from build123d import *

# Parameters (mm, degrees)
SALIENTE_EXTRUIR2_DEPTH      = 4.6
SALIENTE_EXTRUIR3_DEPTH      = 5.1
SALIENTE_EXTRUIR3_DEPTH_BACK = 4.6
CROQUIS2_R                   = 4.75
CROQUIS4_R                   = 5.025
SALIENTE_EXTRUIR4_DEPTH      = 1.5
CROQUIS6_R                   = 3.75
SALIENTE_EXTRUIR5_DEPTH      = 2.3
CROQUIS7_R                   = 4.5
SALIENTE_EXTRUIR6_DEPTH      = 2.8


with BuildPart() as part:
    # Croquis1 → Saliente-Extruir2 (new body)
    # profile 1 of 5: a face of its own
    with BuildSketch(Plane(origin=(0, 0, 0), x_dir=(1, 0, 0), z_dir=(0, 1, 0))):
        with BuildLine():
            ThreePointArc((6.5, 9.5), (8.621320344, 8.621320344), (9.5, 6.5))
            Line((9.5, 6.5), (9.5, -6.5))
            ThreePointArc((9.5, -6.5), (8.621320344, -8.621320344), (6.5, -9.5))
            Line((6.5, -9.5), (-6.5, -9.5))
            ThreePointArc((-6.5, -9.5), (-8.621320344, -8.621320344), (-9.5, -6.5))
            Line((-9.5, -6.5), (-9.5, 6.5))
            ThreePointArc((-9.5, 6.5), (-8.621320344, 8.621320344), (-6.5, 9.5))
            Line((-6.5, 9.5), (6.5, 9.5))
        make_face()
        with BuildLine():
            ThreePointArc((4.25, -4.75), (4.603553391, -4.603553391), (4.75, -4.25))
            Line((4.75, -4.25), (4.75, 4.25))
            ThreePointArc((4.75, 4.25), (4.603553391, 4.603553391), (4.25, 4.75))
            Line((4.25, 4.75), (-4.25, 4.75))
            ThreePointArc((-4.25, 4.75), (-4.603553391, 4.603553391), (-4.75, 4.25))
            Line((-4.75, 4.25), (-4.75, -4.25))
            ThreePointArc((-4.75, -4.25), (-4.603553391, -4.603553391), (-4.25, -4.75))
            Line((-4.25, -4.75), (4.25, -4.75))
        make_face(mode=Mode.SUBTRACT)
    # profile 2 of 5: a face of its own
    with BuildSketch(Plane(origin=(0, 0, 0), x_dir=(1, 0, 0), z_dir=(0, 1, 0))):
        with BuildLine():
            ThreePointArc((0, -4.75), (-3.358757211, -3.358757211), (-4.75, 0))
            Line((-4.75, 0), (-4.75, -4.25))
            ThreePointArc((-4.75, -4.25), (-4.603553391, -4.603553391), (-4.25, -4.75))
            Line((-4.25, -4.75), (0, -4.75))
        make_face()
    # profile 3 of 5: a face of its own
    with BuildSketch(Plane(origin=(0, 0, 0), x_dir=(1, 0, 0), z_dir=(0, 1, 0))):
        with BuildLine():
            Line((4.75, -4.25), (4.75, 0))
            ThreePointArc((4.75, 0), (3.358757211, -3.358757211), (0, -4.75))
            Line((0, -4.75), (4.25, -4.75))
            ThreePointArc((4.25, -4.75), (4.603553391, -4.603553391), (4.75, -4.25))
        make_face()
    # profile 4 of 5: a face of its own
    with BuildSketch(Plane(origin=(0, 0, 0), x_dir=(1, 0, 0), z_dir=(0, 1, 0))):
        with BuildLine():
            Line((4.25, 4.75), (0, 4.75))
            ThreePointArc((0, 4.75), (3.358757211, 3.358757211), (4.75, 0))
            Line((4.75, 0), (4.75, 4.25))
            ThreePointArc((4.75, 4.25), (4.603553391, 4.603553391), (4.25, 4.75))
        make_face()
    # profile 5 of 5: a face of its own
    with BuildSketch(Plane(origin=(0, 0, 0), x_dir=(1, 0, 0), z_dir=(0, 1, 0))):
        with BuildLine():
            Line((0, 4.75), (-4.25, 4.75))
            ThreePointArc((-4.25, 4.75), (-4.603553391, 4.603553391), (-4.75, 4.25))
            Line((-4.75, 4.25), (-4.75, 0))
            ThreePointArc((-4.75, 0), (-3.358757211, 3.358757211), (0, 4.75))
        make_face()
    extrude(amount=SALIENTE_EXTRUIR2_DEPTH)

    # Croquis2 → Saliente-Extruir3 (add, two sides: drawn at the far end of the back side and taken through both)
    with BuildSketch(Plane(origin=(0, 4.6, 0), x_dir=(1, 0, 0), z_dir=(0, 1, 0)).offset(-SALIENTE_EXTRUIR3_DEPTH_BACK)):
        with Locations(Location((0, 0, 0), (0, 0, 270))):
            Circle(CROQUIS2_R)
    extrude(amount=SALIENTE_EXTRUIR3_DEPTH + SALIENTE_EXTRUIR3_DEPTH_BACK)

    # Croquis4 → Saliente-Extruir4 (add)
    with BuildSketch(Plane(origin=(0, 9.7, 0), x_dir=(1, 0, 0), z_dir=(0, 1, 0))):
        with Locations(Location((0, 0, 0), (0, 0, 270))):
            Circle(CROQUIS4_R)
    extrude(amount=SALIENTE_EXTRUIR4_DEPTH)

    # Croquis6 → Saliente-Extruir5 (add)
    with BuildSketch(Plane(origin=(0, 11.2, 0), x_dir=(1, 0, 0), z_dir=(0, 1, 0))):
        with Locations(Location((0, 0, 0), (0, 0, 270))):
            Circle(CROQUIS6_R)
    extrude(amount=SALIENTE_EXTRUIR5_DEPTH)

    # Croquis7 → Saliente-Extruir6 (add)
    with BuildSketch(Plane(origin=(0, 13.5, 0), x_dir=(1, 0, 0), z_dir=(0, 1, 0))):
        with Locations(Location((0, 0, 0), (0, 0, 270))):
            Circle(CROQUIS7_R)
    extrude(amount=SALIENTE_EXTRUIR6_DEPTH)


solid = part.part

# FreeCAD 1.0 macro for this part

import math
import FreeCAD as App
import Part
import Sketcher
Q = App.Units.Quantity

doc = App.newDocument("Part")
params = doc.addObject("Spreadsheet::Sheet", "Params")
for row, (alias, value) in enumerate([
    ("sketch1_radius", "3 mm"),
    ("sketch1_width", "13 mm"),
    ("sketch1_radius2", "4.75 mm"),
    ("pad1_length", "4.6 mm"),
    ("sketch2_diameter", "9.5 mm"),
    ("pad2_length", "5.1 mm"),
    ("pad2_length2", "4.6 mm"),
    ("sketch3_diameter", "10.05 mm"),
    ("pad3_length", "1.5 mm"),
    ("sketch4_diameter", "7.5 mm"),
    ("pad4_length", "2.3 mm"),
    ("sketch5_diameter", "9 mm"),
    ("pad5_length", "2.8 mm"),
], start=1):
    params.set(f"A{row}", alias)
    params.set(f"B{row}", "=" + value)
    params.setAlias(f"B{row}", alias)

body = doc.addObject("PartDesign::Body", "Body")

# Sketch on XZ plane
sketch1 = body.newObject("Sketcher::SketchObject", "Sketch")
sketch1.AttachmentSupport = (doc.getObject("XZ_Plane"), [""])
sketch1.MapMode = "FlatFace"
sketch1.addGeometry(Part.ArcOfCircle(Part.Circle(App.Vector(6.5, -6.5, 0), App.Vector(0, 0, 1), 3), math.radians(-90), math.radians(0)), False)
sketch1.addGeometry(Part.LineSegment(App.Vector(6.5, -9.5, 0), App.Vector(-6.5, -9.5, 0)), False)
sketch1.addGeometry(Part.ArcOfCircle(Part.Circle(App.Vector(-6.5, -6.5, 0), App.Vector(0, 0, 1), 3), math.radians(180), math.radians(270)), False)
sketch1.addGeometry(Part.LineSegment(App.Vector(-9.5, -6.5, 0), App.Vector(-9.5, 6.5, 0)), False)
sketch1.addGeometry(Part.ArcOfCircle(Part.Circle(App.Vector(-6.5, 6.5, 0), App.Vector(0, 0, 1), 3), math.radians(90), math.radians(180)), False)
sketch1.addGeometry(Part.LineSegment(App.Vector(-6.5, 9.5, 0), App.Vector(6.5, 9.5, 0)), False)
sketch1.addGeometry(Part.ArcOfCircle(Part.Circle(App.Vector(6.5, 6.5, 0), App.Vector(0, 0, 1), 3), math.radians(0), math.radians(90)), False)
sketch1.addGeometry(Part.LineSegment(App.Vector(9.5, 6.5, 0), App.Vector(9.5, -6.5, 0)), False)
sketch1.addGeometry(Part.ArcOfCircle(Part.Circle(App.Vector(0, 0, 0), App.Vector(0, 0, 1), 4.75), math.radians(90), math.radians(180)), False)
sketch1.addGeometry(Part.ArcOfCircle(Part.Circle(App.Vector(0, 0, 0), App.Vector(0, 0, 1), 4.75), math.radians(180), math.radians(270)), False)
sketch1.addGeometry(Part.ArcOfCircle(Part.Circle(App.Vector(0, 0, 0), App.Vector(0, 0, 1), 4.75), math.radians(-90), math.radians(0)), False)
sketch1.addGeometry(Part.ArcOfCircle(Part.Circle(App.Vector(0, 0, 0), App.Vector(0, 0, 1), 4.75), math.radians(0), math.radians(90)), False)
sketch1.addConstraint(Sketcher.Constraint("Tangent", 0, 1, 1, 1))
sketch1.addConstraint(Sketcher.Constraint("Tangent", 1, 2, 2, 2))
sketch1.addConstraint(Sketcher.Constraint("Tangent", 2, 1, 3, 1))
sketch1.addConstraint(Sketcher.Constraint("Tangent", 3, 2, 4, 2))
sketch1.addConstraint(Sketcher.Constraint("Tangent", 4, 1, 5, 1))
sketch1.addConstraint(Sketcher.Constraint("Tangent", 5, 2, 6, 2))
sketch1.addConstraint(Sketcher.Constraint("Tangent", 6, 1, 7, 1))
sketch1.addConstraint(Sketcher.Constraint("Tangent", 7, 2, 0, 2))
sketch1.addConstraint(Sketcher.Constraint("Tangent", 8, 2, 9, 1))
sketch1.addConstraint(Sketcher.Constraint("Tangent", 9, 2, 10, 1))
sketch1.addConstraint(Sketcher.Constraint("Tangent", 10, 2, 11, 1))
sketch1.addConstraint(Sketcher.Constraint("Tangent", 11, 2, 8, 1))
sketch1.addConstraint(Sketcher.Constraint("Horizontal", 1))
sketch1.addConstraint(Sketcher.Constraint("Vertical", 3))
sketch1.addConstraint(Sketcher.Constraint("Horizontal", 5))
sketch1.addConstraint(Sketcher.Constraint("Vertical", 7))
sketch1.addConstraint(Sketcher.Constraint("Coincident", 8, 3, -1, 1))
sketch1.addConstraint(Sketcher.Constraint("Equal", 0, 2))
sketch1.addConstraint(Sketcher.Constraint("Equal", 2, 4))
sketch1.addConstraint(Sketcher.Constraint("Equal", 4, 6))
sketch1.addConstraint(Sketcher.Constraint("Equal", 8, 9))
sketch1.addConstraint(Sketcher.Constraint("Symmetric", 0, 3, 4, 3, -1, 1))
sketch1.addConstraint(Sketcher.Constraint("PointOnObject", 8, 2, -1))
sketch1.addConstraint(Sketcher.Constraint("PointOnObject", 9, 2, -2))
sketch1.addConstraint(Sketcher.Constraint("PointOnObject", 10, 2, -1))
sketch1.addConstraint(Sketcher.Constraint("PointOnObject", 11, 2, -2))
sketch1.addConstraint(Sketcher.Constraint("Equal", 5, 3))
sketch1.addConstraint(Sketcher.Constraint("Radius", 0, Q("3 mm")))
sketch1.addConstraint(Sketcher.Constraint("DistanceX", 1, 2, 1, 1, Q("13 mm")))
sketch1.addConstraint(Sketcher.Constraint("Radius", 8, Q("4.75 mm")))
sketch1.setExpression("Constraints[27]", "Params.sketch1_radius")
sketch1.setExpression("Constraints[28]", "Params.sketch1_width")
sketch1.setExpression("Constraints[29]", "Params.sketch1_radius2")
pad1 = body.newObject("PartDesign::Pad", "Pad")
pad1.Profile = sketch1
pad1.setExpression("Length", "Params.pad1_length")
pad1.Reversed = True

# Sketch on XZ plane
sketch2 = body.newObject("Sketcher::SketchObject", "Sketch001")
sketch2.AttachmentSupport = (doc.getObject("XZ_Plane"), [""])
sketch2.MapMode = "FlatFace"
sketch2.AttachmentOffset = App.Placement(App.Vector(0, 0, -4.6), App.Rotation())
sketch2.addGeometry(Part.Circle(App.Vector(0, 0, 0), App.Vector(0, 0, 1), 4.75), False)
sketch2.addConstraint(Sketcher.Constraint("Coincident", 0, 3, -1, 1))
sketch2.addConstraint(Sketcher.Constraint("Diameter", 0, Q("9.5 mm")))
sketch2.setExpression("Constraints[1]", "Params.sketch2_diameter")
pad2 = body.newObject("PartDesign::Pad", "Pad001")
pad2.Profile = sketch2
pad2.Type = "TwoLengths"
pad2.setExpression("Length", "Params.pad2_length")
pad2.setExpression("Length2", "Params.pad2_length2")
pad2.Reversed = True

# Sketch on XZ plane
sketch3 = body.newObject("Sketcher::SketchObject", "Sketch002")
sketch3.AttachmentSupport = (doc.getObject("XZ_Plane"), [""])
sketch3.MapMode = "FlatFace"
sketch3.AttachmentOffset = App.Placement(App.Vector(0, 0, -9.7), App.Rotation())
sketch3.addGeometry(Part.Circle(App.Vector(0, 0, 0), App.Vector(0, 0, 1), 5.025), False)
sketch3.addConstraint(Sketcher.Constraint("Coincident", 0, 3, -1, 1))
sketch3.addConstraint(Sketcher.Constraint("Diameter", 0, Q("10.05 mm")))
sketch3.setExpression("Constraints[1]", "Params.sketch3_diameter")
pad3 = body.newObject("PartDesign::Pad", "Pad002")
pad3.Profile = sketch3
pad3.setExpression("Length", "Params.pad3_length")
pad3.Reversed = True

# Sketch on XZ plane
sketch4 = body.newObject("Sketcher::SketchObject", "Sketch003")
sketch4.AttachmentSupport = (doc.getObject("XZ_Plane"), [""])
sketch4.MapMode = "FlatFace"
sketch4.AttachmentOffset = App.Placement(App.Vector(0, 0, -11.2), App.Rotation())
sketch4.addGeometry(Part.Circle(App.Vector(0, 0, 0), App.Vector(0, 0, 1), 3.75), False)
sketch4.addConstraint(Sketcher.Constraint("Coincident", 0, 3, -1, 1))
sketch4.addConstraint(Sketcher.Constraint("Diameter", 0, Q("7.5 mm")))
sketch4.setExpression("Constraints[1]", "Params.sketch4_diameter")
pad4 = body.newObject("PartDesign::Pad", "Pad003")
pad4.Profile = sketch4
pad4.setExpression("Length", "Params.pad4_length")
pad4.Reversed = True

# Sketch on XZ plane
sketch5 = body.newObject("Sketcher::SketchObject", "Sketch004")
sketch5.AttachmentSupport = (doc.getObject("XZ_Plane"), [""])
sketch5.MapMode = "FlatFace"
sketch5.AttachmentOffset = App.Placement(App.Vector(0, 0, -13.5), App.Rotation())
sketch5.addGeometry(Part.Circle(App.Vector(0, 0, 0), App.Vector(0, 0, 1), 4.5), False)
sketch5.addConstraint(Sketcher.Constraint("Coincident", 0, 3, -1, 1))
sketch5.addConstraint(Sketcher.Constraint("Diameter", 0, Q("9 mm")))
sketch5.setExpression("Constraints[1]", "Params.sketch5_diameter")
pad5 = body.newObject("PartDesign::Pad", "Pad004")
pad5.Profile = sketch5
pad5.setExpression("Length", "Params.pad5_length")
pad5.Reversed = True

doc.recompute()
